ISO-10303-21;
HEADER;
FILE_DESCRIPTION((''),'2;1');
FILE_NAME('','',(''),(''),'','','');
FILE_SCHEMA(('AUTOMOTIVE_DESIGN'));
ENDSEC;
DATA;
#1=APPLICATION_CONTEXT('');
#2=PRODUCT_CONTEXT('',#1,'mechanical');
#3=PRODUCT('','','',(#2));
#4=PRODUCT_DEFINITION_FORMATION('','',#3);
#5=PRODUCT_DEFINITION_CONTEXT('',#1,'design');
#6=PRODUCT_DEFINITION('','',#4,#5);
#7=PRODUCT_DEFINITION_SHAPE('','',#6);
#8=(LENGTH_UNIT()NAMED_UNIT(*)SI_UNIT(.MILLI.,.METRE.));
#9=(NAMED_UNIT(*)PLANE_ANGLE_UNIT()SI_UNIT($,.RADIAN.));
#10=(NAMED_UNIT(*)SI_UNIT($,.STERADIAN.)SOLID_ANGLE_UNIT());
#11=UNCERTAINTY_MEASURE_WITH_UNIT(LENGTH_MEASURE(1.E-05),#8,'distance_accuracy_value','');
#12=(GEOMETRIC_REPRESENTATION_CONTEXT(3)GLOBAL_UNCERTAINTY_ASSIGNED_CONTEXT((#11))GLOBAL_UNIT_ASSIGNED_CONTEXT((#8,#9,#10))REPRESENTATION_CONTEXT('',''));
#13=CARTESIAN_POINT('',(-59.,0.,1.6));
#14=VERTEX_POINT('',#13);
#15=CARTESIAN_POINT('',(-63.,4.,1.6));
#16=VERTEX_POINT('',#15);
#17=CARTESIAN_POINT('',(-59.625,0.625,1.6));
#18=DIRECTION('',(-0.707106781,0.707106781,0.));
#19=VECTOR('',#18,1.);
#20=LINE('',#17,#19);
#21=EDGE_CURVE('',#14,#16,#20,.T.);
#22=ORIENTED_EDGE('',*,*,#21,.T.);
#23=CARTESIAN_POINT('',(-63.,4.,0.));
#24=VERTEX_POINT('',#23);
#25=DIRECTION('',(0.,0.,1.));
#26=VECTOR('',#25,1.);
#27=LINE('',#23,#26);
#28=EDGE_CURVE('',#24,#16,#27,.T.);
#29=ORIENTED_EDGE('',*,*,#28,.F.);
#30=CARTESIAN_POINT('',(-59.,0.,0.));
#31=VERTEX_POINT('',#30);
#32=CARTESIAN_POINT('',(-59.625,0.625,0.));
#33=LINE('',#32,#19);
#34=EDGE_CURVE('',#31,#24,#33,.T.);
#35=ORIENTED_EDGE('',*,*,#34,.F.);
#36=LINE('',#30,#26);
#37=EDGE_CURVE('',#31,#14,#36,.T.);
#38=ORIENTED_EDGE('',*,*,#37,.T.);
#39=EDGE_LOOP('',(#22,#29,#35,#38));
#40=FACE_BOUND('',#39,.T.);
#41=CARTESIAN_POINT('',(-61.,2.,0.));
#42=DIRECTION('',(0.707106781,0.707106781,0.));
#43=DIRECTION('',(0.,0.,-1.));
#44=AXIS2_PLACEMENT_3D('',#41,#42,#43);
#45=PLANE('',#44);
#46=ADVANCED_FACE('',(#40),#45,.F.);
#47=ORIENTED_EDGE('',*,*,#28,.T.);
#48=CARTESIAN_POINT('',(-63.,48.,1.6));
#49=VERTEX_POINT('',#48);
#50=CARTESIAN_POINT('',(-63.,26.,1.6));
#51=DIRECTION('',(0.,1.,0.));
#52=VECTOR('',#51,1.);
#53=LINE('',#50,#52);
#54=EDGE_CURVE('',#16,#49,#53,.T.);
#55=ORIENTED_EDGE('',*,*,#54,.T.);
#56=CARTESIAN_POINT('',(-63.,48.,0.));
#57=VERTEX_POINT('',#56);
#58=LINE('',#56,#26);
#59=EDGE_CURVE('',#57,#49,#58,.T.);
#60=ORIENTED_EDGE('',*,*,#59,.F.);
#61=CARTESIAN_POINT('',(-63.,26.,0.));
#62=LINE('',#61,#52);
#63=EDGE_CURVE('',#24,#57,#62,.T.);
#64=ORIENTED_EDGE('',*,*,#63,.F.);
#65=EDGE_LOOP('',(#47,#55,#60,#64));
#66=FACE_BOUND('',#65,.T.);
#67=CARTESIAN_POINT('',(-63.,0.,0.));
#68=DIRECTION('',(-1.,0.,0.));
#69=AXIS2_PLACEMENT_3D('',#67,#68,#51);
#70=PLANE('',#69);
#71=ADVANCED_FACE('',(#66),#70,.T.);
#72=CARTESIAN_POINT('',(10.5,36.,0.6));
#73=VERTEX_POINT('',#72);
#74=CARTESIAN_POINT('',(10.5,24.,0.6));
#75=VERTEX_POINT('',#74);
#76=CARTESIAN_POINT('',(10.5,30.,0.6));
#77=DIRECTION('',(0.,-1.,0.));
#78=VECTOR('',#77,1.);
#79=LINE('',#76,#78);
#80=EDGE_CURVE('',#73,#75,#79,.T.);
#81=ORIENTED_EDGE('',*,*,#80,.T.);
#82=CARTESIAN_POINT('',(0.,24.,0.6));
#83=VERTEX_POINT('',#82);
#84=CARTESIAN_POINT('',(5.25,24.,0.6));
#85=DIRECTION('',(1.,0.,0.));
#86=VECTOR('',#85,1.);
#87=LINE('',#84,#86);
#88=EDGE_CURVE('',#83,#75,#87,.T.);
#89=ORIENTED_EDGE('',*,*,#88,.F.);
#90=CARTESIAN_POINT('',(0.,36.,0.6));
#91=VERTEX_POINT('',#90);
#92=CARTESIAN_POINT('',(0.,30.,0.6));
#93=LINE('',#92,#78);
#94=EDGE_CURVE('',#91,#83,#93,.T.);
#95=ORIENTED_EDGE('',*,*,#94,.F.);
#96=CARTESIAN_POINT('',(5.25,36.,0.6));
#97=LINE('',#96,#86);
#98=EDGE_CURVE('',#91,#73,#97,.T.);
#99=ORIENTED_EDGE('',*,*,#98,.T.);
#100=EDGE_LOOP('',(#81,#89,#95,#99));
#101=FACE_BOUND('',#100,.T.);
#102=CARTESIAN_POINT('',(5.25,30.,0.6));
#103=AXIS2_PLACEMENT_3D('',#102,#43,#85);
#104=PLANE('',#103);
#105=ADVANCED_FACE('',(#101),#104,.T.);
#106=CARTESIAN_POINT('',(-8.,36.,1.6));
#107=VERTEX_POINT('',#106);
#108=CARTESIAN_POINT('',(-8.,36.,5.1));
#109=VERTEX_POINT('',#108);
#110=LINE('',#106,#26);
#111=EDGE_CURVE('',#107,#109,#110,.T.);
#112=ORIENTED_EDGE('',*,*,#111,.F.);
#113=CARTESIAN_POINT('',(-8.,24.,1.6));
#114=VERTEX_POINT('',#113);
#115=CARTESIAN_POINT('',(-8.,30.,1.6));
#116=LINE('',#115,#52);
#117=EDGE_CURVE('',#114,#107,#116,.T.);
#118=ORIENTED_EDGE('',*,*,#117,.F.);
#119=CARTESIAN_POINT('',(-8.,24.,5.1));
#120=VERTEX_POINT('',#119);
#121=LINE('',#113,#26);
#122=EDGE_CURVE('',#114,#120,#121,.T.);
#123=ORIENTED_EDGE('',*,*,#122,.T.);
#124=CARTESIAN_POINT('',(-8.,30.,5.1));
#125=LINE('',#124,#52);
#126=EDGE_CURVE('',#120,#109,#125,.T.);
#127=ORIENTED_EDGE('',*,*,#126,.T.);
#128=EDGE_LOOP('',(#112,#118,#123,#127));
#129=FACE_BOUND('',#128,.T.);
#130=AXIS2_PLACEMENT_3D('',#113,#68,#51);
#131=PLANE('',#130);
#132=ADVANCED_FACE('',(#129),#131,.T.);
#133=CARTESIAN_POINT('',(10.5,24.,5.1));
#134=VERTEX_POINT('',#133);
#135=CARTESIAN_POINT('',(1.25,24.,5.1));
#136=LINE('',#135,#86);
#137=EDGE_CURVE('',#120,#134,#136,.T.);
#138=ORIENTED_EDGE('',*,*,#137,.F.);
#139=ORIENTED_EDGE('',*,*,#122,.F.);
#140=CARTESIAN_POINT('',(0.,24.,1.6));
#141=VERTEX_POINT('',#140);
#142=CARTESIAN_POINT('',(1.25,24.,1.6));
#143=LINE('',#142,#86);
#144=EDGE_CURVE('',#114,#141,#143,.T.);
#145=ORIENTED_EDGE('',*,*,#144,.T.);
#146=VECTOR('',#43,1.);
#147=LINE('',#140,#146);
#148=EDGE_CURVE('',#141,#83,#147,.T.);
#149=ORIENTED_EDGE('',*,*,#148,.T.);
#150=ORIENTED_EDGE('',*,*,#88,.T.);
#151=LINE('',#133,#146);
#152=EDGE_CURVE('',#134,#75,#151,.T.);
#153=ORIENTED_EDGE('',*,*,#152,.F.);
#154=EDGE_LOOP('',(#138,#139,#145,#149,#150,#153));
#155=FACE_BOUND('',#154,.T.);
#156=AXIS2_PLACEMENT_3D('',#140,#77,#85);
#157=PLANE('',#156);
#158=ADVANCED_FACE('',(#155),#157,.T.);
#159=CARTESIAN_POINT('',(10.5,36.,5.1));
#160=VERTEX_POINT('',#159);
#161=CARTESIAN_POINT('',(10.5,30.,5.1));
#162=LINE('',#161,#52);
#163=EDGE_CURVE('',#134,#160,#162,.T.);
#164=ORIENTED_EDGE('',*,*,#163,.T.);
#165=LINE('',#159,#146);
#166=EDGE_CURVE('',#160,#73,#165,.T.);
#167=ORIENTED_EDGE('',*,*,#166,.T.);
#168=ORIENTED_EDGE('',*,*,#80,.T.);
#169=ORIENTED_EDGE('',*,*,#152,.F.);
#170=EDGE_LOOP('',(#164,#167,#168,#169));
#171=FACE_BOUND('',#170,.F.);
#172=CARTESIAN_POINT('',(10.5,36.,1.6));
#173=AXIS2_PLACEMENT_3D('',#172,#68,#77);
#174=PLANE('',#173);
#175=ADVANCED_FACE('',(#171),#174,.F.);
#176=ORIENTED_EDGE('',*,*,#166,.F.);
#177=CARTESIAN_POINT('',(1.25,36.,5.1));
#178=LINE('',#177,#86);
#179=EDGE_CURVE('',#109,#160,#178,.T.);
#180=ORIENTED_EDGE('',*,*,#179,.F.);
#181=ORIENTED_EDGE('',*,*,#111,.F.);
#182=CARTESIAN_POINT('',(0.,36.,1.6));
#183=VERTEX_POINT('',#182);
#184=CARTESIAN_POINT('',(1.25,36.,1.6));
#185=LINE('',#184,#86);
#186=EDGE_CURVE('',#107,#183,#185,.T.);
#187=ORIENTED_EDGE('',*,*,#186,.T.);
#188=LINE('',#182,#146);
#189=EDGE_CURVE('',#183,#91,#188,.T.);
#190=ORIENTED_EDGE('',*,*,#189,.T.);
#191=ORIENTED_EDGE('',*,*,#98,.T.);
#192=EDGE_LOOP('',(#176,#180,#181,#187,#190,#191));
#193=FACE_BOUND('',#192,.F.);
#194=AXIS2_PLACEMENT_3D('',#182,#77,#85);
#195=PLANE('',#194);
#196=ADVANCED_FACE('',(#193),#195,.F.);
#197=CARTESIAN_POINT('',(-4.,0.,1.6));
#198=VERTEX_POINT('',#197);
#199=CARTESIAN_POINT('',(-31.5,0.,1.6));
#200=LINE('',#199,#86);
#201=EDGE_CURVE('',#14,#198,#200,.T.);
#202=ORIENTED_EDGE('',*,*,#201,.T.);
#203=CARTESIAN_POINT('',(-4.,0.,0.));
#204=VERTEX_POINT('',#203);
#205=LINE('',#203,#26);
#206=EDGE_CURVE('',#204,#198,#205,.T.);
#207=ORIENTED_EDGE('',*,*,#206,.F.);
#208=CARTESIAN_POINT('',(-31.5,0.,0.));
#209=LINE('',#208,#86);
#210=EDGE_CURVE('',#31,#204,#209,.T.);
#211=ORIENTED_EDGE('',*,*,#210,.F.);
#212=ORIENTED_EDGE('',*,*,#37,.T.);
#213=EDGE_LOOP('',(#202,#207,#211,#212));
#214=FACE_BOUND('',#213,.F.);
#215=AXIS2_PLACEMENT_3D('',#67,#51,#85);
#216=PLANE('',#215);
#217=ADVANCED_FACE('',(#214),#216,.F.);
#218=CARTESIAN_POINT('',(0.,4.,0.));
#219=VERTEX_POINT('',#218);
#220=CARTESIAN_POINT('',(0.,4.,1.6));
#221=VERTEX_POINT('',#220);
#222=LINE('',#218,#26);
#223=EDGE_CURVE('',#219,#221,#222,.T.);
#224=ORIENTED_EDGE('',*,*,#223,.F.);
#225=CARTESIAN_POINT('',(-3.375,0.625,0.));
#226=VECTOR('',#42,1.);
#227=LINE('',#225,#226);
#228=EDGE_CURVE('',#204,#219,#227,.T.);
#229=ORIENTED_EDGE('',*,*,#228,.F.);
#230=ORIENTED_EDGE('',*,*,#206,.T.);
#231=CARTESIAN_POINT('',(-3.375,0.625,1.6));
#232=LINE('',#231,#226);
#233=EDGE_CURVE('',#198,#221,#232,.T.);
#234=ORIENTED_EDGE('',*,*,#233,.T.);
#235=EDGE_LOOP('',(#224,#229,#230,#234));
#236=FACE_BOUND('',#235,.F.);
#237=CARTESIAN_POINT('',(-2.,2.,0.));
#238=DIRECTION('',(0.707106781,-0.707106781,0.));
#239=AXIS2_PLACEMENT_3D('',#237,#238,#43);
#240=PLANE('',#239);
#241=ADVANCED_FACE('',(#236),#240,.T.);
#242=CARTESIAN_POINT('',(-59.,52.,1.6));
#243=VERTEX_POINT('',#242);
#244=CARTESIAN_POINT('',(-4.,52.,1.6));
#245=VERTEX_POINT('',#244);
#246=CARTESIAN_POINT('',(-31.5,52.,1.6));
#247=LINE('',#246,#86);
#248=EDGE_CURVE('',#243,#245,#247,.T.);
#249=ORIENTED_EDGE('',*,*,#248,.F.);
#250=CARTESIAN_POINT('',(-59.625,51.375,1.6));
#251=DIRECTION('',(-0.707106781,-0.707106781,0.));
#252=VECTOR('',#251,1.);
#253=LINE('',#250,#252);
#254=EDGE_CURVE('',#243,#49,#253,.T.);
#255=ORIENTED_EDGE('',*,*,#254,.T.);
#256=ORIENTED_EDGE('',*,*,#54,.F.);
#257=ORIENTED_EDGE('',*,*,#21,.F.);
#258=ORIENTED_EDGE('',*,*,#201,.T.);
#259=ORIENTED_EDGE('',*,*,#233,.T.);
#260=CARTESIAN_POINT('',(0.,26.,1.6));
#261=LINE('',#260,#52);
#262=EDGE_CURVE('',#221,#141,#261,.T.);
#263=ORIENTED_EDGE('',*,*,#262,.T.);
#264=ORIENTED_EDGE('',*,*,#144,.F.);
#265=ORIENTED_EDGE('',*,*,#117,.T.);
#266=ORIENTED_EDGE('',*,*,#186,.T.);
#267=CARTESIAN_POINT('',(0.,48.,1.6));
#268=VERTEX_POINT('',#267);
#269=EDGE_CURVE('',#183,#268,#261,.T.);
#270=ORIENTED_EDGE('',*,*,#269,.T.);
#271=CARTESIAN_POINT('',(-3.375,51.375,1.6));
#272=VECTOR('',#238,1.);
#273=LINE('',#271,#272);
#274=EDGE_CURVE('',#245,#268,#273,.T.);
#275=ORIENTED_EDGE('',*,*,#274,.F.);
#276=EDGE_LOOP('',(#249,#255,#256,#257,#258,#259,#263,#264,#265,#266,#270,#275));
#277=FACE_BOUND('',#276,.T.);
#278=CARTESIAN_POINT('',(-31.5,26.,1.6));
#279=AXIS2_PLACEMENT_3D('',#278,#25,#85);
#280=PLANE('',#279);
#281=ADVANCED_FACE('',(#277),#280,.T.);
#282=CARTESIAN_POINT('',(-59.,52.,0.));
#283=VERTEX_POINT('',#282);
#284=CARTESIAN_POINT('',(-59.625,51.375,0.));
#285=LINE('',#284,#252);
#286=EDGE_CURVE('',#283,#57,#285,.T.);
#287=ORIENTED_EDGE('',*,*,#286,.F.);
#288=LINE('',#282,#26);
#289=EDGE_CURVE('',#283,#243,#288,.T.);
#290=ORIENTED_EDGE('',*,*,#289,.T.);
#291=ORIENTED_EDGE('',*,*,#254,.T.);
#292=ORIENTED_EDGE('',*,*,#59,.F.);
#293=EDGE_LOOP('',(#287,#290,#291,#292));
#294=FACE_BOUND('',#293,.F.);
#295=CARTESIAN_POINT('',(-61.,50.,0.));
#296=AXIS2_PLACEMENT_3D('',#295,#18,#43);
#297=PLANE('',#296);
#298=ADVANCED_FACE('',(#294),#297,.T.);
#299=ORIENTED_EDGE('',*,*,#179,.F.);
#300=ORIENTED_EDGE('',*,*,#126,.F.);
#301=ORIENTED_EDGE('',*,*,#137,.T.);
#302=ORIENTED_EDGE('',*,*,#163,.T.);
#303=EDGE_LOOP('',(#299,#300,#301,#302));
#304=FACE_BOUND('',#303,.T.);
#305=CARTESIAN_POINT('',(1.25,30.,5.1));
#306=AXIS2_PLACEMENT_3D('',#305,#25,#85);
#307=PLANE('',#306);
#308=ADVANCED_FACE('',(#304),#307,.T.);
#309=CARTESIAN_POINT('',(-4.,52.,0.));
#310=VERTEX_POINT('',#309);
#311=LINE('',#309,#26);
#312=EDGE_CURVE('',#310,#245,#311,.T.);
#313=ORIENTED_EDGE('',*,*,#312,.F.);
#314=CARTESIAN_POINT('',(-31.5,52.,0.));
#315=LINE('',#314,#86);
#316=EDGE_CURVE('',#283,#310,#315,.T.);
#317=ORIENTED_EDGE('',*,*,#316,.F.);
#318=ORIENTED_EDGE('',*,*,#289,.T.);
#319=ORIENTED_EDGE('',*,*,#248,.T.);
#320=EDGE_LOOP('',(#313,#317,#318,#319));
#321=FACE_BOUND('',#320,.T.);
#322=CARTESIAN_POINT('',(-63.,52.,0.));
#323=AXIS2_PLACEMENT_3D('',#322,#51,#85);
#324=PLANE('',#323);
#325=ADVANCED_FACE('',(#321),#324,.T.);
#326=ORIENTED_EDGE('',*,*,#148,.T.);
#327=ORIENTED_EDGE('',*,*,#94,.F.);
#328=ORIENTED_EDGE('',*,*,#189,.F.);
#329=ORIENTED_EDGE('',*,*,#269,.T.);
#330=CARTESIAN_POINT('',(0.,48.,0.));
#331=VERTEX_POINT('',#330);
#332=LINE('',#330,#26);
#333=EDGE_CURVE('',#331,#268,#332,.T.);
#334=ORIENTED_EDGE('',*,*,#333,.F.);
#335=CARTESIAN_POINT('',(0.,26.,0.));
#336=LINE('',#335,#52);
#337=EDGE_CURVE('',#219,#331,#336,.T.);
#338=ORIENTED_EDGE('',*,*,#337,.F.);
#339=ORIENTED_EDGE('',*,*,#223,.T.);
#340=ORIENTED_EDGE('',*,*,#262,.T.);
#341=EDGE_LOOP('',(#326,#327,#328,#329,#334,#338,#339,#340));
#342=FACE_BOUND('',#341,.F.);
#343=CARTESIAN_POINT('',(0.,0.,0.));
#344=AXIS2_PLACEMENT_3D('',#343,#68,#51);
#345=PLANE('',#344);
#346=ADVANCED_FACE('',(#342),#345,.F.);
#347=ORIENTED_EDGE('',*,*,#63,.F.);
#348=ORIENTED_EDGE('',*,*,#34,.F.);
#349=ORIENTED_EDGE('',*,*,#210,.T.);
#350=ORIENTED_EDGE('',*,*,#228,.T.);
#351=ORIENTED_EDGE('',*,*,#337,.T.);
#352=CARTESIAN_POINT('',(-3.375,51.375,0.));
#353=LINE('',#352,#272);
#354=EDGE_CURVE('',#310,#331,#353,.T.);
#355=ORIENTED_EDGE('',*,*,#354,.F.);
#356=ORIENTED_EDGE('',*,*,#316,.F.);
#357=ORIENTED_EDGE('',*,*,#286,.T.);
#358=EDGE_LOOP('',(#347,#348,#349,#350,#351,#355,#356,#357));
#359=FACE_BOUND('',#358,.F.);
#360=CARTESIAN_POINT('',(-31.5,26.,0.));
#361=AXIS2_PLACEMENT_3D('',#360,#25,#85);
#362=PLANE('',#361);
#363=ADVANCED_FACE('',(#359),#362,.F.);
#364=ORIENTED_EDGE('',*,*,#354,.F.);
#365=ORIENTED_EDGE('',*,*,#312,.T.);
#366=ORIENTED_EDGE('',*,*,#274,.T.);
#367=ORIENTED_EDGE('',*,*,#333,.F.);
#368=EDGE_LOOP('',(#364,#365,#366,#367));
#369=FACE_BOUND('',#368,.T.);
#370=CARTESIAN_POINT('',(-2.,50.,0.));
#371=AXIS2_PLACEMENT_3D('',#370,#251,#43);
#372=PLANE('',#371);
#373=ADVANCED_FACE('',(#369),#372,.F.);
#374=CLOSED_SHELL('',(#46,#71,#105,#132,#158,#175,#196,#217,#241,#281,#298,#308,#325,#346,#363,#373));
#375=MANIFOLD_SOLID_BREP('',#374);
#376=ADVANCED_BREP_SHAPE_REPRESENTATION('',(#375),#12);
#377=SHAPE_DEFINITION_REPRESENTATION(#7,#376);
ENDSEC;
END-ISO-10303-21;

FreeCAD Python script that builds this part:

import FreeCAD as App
import Part
import Sketcher

V = App.Vector
Q = App.Units.Quantity


def edges_at(feature, points):
    """Names of the edges that pass closest to the given points."""
    edges = feature.Shape.Edges
    near = lambda p: min(range(len(edges)), key=lambda i: edges[i].distToShape(Part.Vertex(*p))[0])
    return sorted({f"Edge{near(p) + 1}" for p in points})


def add_polygon(sketch, points):
    """Adds a closed chain of lines whose ends are joined by coincident constraints."""
    first, n = sketch.GeometryCount, len(points)
    for a, b in zip(points, points[1:] + points[:1]):
        sketch.addGeometry(Part.LineSegment(App.Vector(*a, 0), App.Vector(*b, 0)), False)
    for i in range(n):
        sketch.addConstraint(Sketcher.Constraint("Coincident", first + i, 2, first + (i + 1) % n, 1))

doc = App.newDocument("Part")
body = doc.addObject("PartDesign::Body", "Body")

sketch1 = body.newObject("Sketcher::SketchObject", "Sketch")
sketch1.AttachmentSupport = (doc.getObject("XY_Plane"), [""])
sketch1.MapMode = "FlatFace"
add_polygon(sketch1, [(-63, 52), (-63, 0), (0, 0), (0, 52)])
sketch1.addConstraint([
    Sketcher.Constraint("Vertical", 0),
    Sketcher.Constraint("Horizontal", 1),
    Sketcher.Constraint("Vertical", 2),
    Sketcher.Constraint("Horizontal", 3),
    Sketcher.Constraint("Coincident", 1, 2, -1, 1),
    Sketcher.Constraint("DistanceX", 1, 1, 1, 2, Q("63 mm")),
    Sketcher.Constraint("DistanceY", 0, 2, 0, 1, Q("52 mm")),
])
pad1 = body.newObject("PartDesign::Pad", "Pad")
pad1.Profile = sketch1
pad1.Length = 1.6

sketch2 = body.newObject("Sketcher::SketchObject", "Sketch001")
sketch2.AttachmentSupport = (doc.getObject("XY_Plane"), [""])
sketch2.MapMode = "FlatFace"
sketch2.AttachmentOffset = App.Placement(V(0, 0, 1.6), App.Rotation())
add_polygon(sketch2, [(-8, 36), (-8, 24), (10, 24), (10, 36)])
sketch2.addConstraint([
    Sketcher.Constraint("Vertical", 0),
    Sketcher.Constraint("Horizontal", 1),
    Sketcher.Constraint("Vertical", 2),
    Sketcher.Constraint("Horizontal", 3),
    Sketcher.Constraint("DistanceY", 0, 2, 0, 1, Q("12 mm")),
    Sketcher.Constraint("DistanceX", 1, 1, 1, 2, Q("18.5 mm")),
    Sketcher.Constraint("DistanceX", 0, 2, -1, 1, Q("8 mm")),
    Sketcher.Constraint("DistanceY", -1, 1, 0, 2, Q("24 mm")),
])
pad2 = body.newObject("PartDesign::Pad", "Pad001")
pad2.Profile = sketch2
pad2.Length = 3.5

sketch3 = body.newObject("Sketcher::SketchObject", "Sketch002")
sketch3.AttachmentSupport = (doc.getObject("XY_Plane"), [""])
sketch3.MapMode = "FlatFace"
sketch3.AttachmentOffset = App.Placement(V(0, 0, 1.6), App.Rotation())
add_polygon(sketch3, [(0, 24), (0, 36), (10, 36), (10, 24)])
sketch3.addConstraint([
    Sketcher.Constraint("Vertical", 0),
    Sketcher.Constraint("Horizontal", 1),
    Sketcher.Constraint("Vertical", 2),
    Sketcher.Constraint("Horizontal", 3),
    Sketcher.Constraint("PointOnObject", 0, 2, -2),
    Sketcher.Constraint("DistanceY", 0, 1, 0, 2, Q("12 mm")),
    Sketcher.Constraint("DistanceX", 1, 1, 1, 2, Q("10.5 mm")),
    Sketcher.Constraint("DistanceY", -1, 1, 0, 2, Q("36 mm")),
])
pad3 = body.newObject("PartDesign::Pad", "Pad002")
pad3.Profile = sketch3
pad3.Length = 1
pad3.Reversed = True
doc.recompute()

chamfer = body.newObject("PartDesign::Chamfer", "Chamfer")
chamfer.Base = (pad3, edges_at(pad3, [
    (-63, 52, 0.8),
    (0, 52, 0.8),
    (-63, 0, 0.8),
    (0, 0, 0.8),
]))
chamfer.Size = 4

doc.recompute()
